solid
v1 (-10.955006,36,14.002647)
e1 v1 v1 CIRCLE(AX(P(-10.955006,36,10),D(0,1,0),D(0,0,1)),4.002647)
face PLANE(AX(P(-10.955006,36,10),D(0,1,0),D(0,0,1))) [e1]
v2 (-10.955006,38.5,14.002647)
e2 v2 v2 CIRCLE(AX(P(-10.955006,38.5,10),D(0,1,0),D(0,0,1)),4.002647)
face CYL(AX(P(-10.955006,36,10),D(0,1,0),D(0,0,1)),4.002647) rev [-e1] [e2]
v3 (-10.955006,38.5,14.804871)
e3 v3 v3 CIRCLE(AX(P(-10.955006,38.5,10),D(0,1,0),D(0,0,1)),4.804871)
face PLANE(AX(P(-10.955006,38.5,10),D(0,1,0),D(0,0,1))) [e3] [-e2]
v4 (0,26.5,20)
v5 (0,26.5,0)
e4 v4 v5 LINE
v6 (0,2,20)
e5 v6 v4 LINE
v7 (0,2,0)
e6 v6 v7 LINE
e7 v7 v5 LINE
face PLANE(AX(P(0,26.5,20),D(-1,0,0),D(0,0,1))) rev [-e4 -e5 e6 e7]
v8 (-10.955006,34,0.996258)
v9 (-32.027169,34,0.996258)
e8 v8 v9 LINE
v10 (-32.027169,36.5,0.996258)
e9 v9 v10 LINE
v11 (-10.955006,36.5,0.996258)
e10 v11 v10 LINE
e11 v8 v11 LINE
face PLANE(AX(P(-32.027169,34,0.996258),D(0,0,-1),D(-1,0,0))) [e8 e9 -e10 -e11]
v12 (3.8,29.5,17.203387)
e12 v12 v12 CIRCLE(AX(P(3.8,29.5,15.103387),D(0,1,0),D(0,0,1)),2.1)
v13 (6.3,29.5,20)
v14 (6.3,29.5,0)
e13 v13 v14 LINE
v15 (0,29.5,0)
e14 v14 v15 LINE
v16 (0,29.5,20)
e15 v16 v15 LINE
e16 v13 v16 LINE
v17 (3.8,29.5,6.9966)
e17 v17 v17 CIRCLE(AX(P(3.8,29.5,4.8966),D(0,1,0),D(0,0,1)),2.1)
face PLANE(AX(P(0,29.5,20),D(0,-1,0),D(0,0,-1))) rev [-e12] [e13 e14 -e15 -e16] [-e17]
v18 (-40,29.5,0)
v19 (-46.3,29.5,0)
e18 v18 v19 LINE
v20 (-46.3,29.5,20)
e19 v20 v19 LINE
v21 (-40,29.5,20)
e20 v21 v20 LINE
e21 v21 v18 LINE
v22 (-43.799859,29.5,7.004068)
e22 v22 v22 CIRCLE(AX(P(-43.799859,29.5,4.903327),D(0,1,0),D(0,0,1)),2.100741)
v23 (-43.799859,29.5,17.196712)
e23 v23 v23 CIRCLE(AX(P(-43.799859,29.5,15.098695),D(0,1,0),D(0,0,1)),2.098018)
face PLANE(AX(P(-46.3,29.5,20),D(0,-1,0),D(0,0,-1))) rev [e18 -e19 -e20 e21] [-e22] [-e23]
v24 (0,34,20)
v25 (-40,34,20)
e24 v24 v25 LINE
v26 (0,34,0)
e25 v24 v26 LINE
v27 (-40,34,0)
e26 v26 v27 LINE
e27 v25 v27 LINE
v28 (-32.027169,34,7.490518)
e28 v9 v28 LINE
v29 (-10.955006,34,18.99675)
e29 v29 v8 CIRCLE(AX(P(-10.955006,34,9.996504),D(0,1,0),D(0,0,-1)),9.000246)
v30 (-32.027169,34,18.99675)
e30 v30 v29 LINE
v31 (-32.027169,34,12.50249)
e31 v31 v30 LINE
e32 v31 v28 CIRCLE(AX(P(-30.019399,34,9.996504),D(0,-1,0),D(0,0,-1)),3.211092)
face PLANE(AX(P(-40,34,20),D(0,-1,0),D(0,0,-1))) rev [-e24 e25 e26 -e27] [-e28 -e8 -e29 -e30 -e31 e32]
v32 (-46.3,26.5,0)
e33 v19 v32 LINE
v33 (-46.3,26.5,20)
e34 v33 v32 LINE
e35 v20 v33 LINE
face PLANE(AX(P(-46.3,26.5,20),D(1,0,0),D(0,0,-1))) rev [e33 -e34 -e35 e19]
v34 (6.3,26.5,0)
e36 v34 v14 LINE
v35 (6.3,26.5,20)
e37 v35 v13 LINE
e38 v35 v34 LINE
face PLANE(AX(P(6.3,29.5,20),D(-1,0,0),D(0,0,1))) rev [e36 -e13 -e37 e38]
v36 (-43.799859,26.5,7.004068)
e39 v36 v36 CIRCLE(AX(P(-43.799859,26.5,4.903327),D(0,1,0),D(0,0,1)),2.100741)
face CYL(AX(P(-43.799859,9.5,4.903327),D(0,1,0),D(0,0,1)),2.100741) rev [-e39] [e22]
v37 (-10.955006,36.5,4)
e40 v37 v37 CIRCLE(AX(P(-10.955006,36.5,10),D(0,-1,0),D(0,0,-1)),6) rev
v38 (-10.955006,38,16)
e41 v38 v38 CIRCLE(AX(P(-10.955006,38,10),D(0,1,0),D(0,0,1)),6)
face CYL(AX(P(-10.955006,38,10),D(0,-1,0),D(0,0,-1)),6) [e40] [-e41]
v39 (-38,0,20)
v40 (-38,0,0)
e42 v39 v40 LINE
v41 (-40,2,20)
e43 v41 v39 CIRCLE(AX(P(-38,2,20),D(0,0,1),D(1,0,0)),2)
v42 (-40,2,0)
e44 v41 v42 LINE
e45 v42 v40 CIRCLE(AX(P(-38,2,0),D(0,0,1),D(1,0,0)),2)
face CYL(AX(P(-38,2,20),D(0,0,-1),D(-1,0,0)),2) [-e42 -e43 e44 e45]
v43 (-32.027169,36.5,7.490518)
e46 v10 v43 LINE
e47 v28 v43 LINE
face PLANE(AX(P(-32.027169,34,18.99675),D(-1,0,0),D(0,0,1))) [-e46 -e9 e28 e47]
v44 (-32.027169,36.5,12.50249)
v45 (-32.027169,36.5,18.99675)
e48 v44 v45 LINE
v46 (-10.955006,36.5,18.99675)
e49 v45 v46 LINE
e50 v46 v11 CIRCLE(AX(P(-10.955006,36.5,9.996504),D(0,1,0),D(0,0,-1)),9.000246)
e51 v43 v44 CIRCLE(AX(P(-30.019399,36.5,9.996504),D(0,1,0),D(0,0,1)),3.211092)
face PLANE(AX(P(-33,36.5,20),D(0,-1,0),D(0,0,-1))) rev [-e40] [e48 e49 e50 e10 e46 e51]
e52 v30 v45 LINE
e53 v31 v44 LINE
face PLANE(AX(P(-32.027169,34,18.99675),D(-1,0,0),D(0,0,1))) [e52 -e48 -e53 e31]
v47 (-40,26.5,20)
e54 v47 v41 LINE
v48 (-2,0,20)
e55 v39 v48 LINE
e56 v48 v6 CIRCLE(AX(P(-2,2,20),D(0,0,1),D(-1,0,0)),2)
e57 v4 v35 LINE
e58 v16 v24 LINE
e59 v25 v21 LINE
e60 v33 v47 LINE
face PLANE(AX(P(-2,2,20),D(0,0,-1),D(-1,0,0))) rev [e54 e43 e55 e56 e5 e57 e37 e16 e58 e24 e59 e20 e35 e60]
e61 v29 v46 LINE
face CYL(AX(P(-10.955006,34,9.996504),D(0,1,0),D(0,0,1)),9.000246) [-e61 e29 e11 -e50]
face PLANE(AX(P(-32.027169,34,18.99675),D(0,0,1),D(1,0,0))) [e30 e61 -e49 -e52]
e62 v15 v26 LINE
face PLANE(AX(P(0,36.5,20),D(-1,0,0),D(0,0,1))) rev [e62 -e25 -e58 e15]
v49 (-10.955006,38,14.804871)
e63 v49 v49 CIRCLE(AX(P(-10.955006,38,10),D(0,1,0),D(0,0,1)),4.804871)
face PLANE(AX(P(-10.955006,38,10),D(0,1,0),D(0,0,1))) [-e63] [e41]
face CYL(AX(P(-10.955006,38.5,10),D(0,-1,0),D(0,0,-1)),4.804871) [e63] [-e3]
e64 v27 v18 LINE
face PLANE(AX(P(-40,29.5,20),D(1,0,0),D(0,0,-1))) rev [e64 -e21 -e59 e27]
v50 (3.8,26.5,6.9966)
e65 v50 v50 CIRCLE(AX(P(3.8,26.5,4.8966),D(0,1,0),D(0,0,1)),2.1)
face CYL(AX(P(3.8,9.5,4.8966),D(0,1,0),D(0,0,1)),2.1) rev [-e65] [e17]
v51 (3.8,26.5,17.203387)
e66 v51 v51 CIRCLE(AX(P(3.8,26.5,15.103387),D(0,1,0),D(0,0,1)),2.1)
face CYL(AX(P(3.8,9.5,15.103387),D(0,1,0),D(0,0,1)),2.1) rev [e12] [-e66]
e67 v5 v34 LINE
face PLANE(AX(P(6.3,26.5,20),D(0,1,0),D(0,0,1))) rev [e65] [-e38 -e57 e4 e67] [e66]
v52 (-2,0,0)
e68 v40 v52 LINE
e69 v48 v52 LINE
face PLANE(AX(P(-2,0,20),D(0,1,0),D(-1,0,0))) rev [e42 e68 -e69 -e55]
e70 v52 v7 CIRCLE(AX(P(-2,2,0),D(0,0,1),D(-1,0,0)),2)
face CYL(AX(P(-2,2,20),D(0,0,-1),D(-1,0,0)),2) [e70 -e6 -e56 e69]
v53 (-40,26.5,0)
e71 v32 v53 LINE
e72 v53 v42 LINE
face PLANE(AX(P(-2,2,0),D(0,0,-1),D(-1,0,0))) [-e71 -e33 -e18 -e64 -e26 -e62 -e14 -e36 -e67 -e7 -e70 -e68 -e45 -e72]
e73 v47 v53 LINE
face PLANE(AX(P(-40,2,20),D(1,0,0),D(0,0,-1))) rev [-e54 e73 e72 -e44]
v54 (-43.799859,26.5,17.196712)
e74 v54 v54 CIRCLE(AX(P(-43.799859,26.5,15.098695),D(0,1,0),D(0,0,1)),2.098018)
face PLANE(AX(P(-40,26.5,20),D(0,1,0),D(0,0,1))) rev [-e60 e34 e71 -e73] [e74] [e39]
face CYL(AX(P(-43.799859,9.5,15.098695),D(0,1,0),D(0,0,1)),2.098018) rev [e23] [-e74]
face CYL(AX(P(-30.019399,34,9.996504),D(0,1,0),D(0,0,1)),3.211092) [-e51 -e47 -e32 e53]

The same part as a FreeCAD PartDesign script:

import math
import FreeCAD as App
import Part
import Sketcher
from FreeCAD import Vector


def add_polygon(sketch, points):
    """Adds a closed chain of lines whose ends are joined by coincident constraints."""
    first, n = sketch.GeometryCount, len(points)
    for a, b in zip(points, points[1:] + points[:1]):
        sketch.addGeometry(Part.LineSegment(App.Vector(*a, 0), App.Vector(*b, 0)), False)
    for i in range(n):
        sketch.addConstraint(Sketcher.Constraint("Coincident", first + i, 2, first + (i + 1) % n, 1))

doc = App.newDocument("Part")
body = doc.addObject("PartDesign::Body", "Body")

# Sketch on XY plane
sketch1 = body.newObject("Sketcher::SketchObject", "Sketch")
sketch1.AttachmentSupport = (doc.getObject("XY_Plane"), [""])
sketch1.MapMode = "FlatFace"
sketch1.addGeometry([
    Part.LineSegment(Vector(-38, 0, 0), Vector(-2, 0, 0)),  # 0
    Part.ArcOfCircle(Part.Circle(Vector(-2, 2, 0), Vector(0, 0, 1), 2), math.radians(-90), math.radians(0)),  # 1
    Part.LineSegment(Vector(0, 2, 0), Vector(0, 26.5, 0)),  # 2
    Part.LineSegment(Vector(0, 26.5, 0), Vector(6.3, 26.5, 0)),  # 3
    Part.LineSegment(Vector(6.3, 26.5, 0), Vector(6.3, 29.5, 0)),  # 4
    Part.LineSegment(Vector(6.3, 29.5, 0), Vector(0, 29.5, 0)),  # 5
    Part.LineSegment(Vector(0, 29.5, 0), Vector(0, 36.5, 0)),  # 6
    Part.LineSegment(Vector(0, 36.5, 0), Vector(-33, 36.5, 0)),  # 7
    Part.LineSegment(Vector(-33, 36.5, 0), Vector(-33, 34, 0)),  # 8
    Part.LineSegment(Vector(-33, 34, 0), Vector(-40, 34, 0)),  # 9
    Part.LineSegment(Vector(-40, 34, 0), Vector(-40, 29.5, 0)),  # 10
    Part.LineSegment(Vector(-40, 29.5, 0), Vector(-46.3, 29.5, 0)),  # 11
    Part.LineSegment(Vector(-46.3, 29.5, 0), Vector(-46.3, 26.5, 0)),  # 12
    Part.LineSegment(Vector(-46.3, 26.5, 0), Vector(-40, 26.5, 0)),  # 13
    Part.LineSegment(Vector(-40, 26.5, 0), Vector(-40, 2, 0)),  # 14
    Part.ArcOfCircle(Part.Circle(Vector(-38, 2, 0), Vector(0, 0, 1), 2), math.radians(-180), math.radians(-90)),  # 15
], False)
sketch1.addConstraint([
    Sketcher.Constraint("Tangent", 0, 2, 1, 1),
    Sketcher.Constraint("Tangent", 1, 2, 2, 1),
    Sketcher.Constraint("Coincident", 2, 2, 3, 1),
    Sketcher.Constraint("Coincident", 3, 2, 4, 1),
    Sketcher.Constraint("Coincident", 4, 2, 5, 1),
    Sketcher.Constraint("Coincident", 5, 2, 6, 1),
    Sketcher.Constraint("Coincident", 6, 2, 7, 1),
    Sketcher.Constraint("Coincident", 7, 2, 8, 1),
    Sketcher.Constraint("Coincident", 8, 2, 9, 1),
    Sketcher.Constraint("Coincident", 9, 2, 10, 1),
    Sketcher.Constraint("Coincident", 10, 2, 11, 1),
    Sketcher.Constraint("Coincident", 11, 2, 12, 1),
    Sketcher.Constraint("Coincident", 12, 2, 13, 1),
    Sketcher.Constraint("Coincident", 13, 2, 14, 1),
    Sketcher.Constraint("Tangent", 14, 2, 15, 1),
    Sketcher.Constraint("Tangent", 15, 2, 0, 1),
    Sketcher.Constraint("Horizontal", 0),
    Sketcher.Constraint("Vertical", 2),
    Sketcher.Constraint("Horizontal", 3),
    Sketcher.Constraint("Vertical", 4),
    Sketcher.Constraint("Horizontal", 5),
    Sketcher.Constraint("Vertical", 6),
    Sketcher.Constraint("Horizontal", 7),
    Sketcher.Constraint("Vertical", 8),
    Sketcher.Constraint("Horizontal", 9),
    Sketcher.Constraint("Vertical", 10),
    Sketcher.Constraint("Horizontal", 11),
    Sketcher.Constraint("Vertical", 12),
    Sketcher.Constraint("Horizontal", 13),
    Sketcher.Constraint("Vertical", 14),
    Sketcher.Constraint("Equal", 1, 15),
    Sketcher.Constraint("PointOnObject", 0, 2, -1),
    Sketcher.Constraint("PointOnObject", 1, 2, -2),
    Sketcher.Constraint("PointOnObject", 5, 2, -2),
    Sketcher.Constraint("Horizontal", 5, 2, 10, 2),
    Sketcher.Constraint("Horizontal", 3, 2, 12, 2),
    Sketcher.Constraint("Vertical", 10, 2, 13, 2),
    Sketcher.Constraint("Equal", 5, 11),
    Sketcher.Constraint("Equal", 9, 6),
    Sketcher.Constraint("Radius", 1, 2.0),
    Sketcher.Constraint("DistanceX", 0, 1, 0, 2, 36.0),
    Sketcher.Constraint("DistanceX", 7, 2, 7, 1, 33.0),
    Sketcher.Constraint("DistanceY", 4, 1, 4, 2, 3.0),
    Sketcher.Constraint("DistanceX", 3, 1, 3, 2, 6.3),
    Sketcher.Constraint("DistanceY", 2, 1, 2, 2, 24.5),
    Sketcher.Constraint("DistanceY", 8, 2, 8, 1, 2.5),
])
pad1 = body.newObject("PartDesign::Pad", "Pad")
pad1.Profile = sketch1
pad1.Length = 20

# Sketch on XZ plane
sketch2 = body.newObject("Sketcher::SketchObject", "Sketch001")
sketch2.AttachmentSupport = (doc.getObject("XZ_Plane"), [""])
sketch2.MapMode = "FlatFace"
sketch2.AttachmentOffset = App.Placement(Vector(0, 0, -29.5), App.Rotation())
sketch2.addGeometry([
    Part.Circle(Vector(3.8, 15.1, 0), Vector(0, 0, 1), 2.1),
    Part.Circle(Vector(3.8, 4.9, 0), Vector(0, 0, 1), 2.1),
], False)
sketch2.addConstraint([
    Sketcher.Constraint("Equal", 0, 1),
    Sketcher.Constraint("Vertical", 0, 3, 1, 3),
    Sketcher.Constraint("Diameter", 0, 4.2),
    Sketcher.Constraint("DistanceX", -1, 1, 0, 3, 3.8),
    Sketcher.Constraint("DistanceY", -1, 1, 1, 3, 4.8966),
    Sketcher.Constraint("DistanceY", -1, 1, 0, 3, 15.103387),
])
pocket1 = body.newObject("PartDesign::Pocket", "Pocket")
pocket1.Profile = sketch2
pocket1.Length = 20
pocket1.Reversed = True

# Sketch on XZ plane
sketch3 = body.newObject("Sketcher::SketchObject", "Sketch002")
sketch3.AttachmentSupport = (doc.getObject("XZ_Plane"), [""])
sketch3.MapMode = "FlatFace"
sketch3.AttachmentOffset = App.Placement(Vector(0, 0, -29.5), App.Rotation())
sketch3.addGeometry([
    Part.Circle(Vector(-43.8, 15.1, 0), Vector(0, 0, 1), 2.1),
    Part.Circle(Vector(-43.8, 4.9, 0), Vector(0, 0, 1), 2.1),
], False)
sketch3.addConstraint([
    Sketcher.Constraint("Vertical", 0, 3, 1, 3),
    Sketcher.Constraint("Diameter", 1, 4.201481),
    Sketcher.Constraint("Diameter", 0, 4.196035),
    Sketcher.Constraint("DistanceX", 0, 3, -1, 1, 43.799859),
    Sketcher.Constraint("DistanceY", -1, 1, 0, 3, 15.098695),
    Sketcher.Constraint("DistanceY", -1, 1, 1, 3, 4.903327),
])
pocket2 = body.newObject("PartDesign::Pocket", "Pocket001")
pocket2.Profile = sketch3
pocket2.Length = 20
pocket2.Reversed = True

# Sketch on XZ plane
sketch4 = body.newObject("Sketcher::SketchObject", "Sketch003")
sketch4.AttachmentSupport = (doc.getObject("XZ_Plane"), [""])
sketch4.MapMode = "FlatFace"
sketch4.AttachmentOffset = App.Placement(Vector(0, 0, -36.5), App.Rotation())
sketch4.addGeometry(Part.Circle(Vector(-11, 10, 0), Vector(0, 0, 1), 6), False)
sketch4.addConstraint([
    Sketcher.Constraint("Diameter", 0, 12.0),
    Sketcher.Constraint("DistanceY", -1, 1, 0, 3, 10.0),
    Sketcher.Constraint("DistanceX", 0, 3, -1, 1, 10.955006),
])
pad2 = body.newObject("PartDesign::Pad", "Pad001")
pad2.Profile = sketch4
pad2.Length = 1.5
pad2.Reversed = True

# Sketch on XZ plane
sketch5 = body.newObject("Sketcher::SketchObject", "Sketch004")
sketch5.AttachmentSupport = (doc.getObject("XZ_Plane"), [""])
sketch5.MapMode = "FlatFace"
sketch5.AttachmentOffset = App.Placement(Vector(0, 0, -38), App.Rotation())
sketch5.addGeometry(Part.Circle(Vector(-11, 10, 0), Vector(0, 0, 1), 4.8), False)
sketch5.addConstraint([
    Sketcher.Constraint("DistanceY", -1, 1, 0, 3, 10.0),
    Sketcher.Constraint("Diameter", 0, 9.609742),
    Sketcher.Constraint("DistanceX", 0, 3, -1, 1, 10.955006),
])
pad3 = body.newObject("PartDesign::Pad", "Pad002")
pad3.Profile = sketch5
pad3.Length = 0.5
pad3.Reversed = True

# Sketch on XZ plane
sketch6 = body.newObject("Sketcher::SketchObject", "Sketch005")
sketch6.AttachmentSupport = (doc.getObject("XZ_Plane"), [""])
sketch6.MapMode = "FlatFace"
sketch6.AttachmentOffset = App.Placement(Vector(0, 0, -38.5), App.Rotation())
sketch6.addGeometry(Part.Circle(Vector(-11, 10, 0), Vector(0, 0, 1), 4), False)
sketch6.addConstraint([
    Sketcher.Constraint("DistanceY", -1, 1, 0, 3, 10.0),
    Sketcher.Constraint("Diameter", 0, 8.005294),
    Sketcher.Constraint("DistanceX", 0, 3, -1, 1, 10.955006),
])
pocket3 = body.newObject("PartDesign::Pocket", "Pocket002")
pocket3.Profile = sketch6
pocket3.Length = 2.5
pocket3.Reversed = True

# Sketch on XZ plane
sketch7 = body.newObject("Sketcher::SketchObject", "Sketch006")
sketch7.AttachmentSupport = (doc.getObject("XZ_Plane"), [""])
sketch7.MapMode = "FlatFace"
sketch7.AttachmentOffset = App.Placement(Vector(0, 0, -36.5), App.Rotation())
add_polygon(sketch7, [(-54, -8), (-54, 28), (14, 28), (14, -8)])  # lines 0-3
sketch7.addGeometry(Part.LineSegment(Vector(-11, 19, 0), Vector(-32, 19, 0)), False)  # 4
sketch7.addGeometry(Part.LineSegment(Vector(-32, 19, 0), Vector(-32, 1, 0)), False)  # 5
sketch7.addGeometry(Part.LineSegment(Vector(-32, 1, 0), Vector(-11, 1, 0)), False)  # 6
sketch7.addGeometry(Part.ArcOfCircle(Part.Circle(Vector(-11, 10, 0), Vector(0, 0, 1), 9), math.radians(-90), math.radians(90)), False)  # 7
sketch7.addConstraint([
    Sketcher.Constraint("Coincident", 4, 2, 5, 1),
    Sketcher.Constraint("Coincident", 5, 2, 6, 1),
    Sketcher.Constraint("Tangent", 6, 2, 7, 1),
    Sketcher.Constraint("Tangent", 7, 2, 4, 1),
    Sketcher.Constraint("Vertical", 0),
    Sketcher.Constraint("Horizontal", 1),
    Sketcher.Constraint("Vertical", 2),
    Sketcher.Constraint("Horizontal", 3),
    Sketcher.Constraint("Horizontal", 4),
    Sketcher.Constraint("Vertical", 5),
    Sketcher.Constraint("Horizontal", 6),
    Sketcher.Constraint("DistanceX", 1, 1, 1, 2, 68.236),
    Sketcher.Constraint("DistanceY", 0, 1, 0, 2, 35.636),
    Sketcher.Constraint("DistanceX", 0, 2, -1, 1, 54.118),
    Sketcher.Constraint("DistanceY", -1, 1, 0, 2, 27.818),
    Sketcher.Constraint("Radius", 7, 9.000246),
    Sketcher.Constraint("DistanceX", 4, 2, 4, 1, 21.072164),
    Sketcher.Constraint("DistanceX", 4, 2, -1, 1, 32.027169),
    Sketcher.Constraint("DistanceY", -1, 1, 4, 2, 18.99675),
])
pocket4 = body.newObject("PartDesign::Pocket", "Pocket003")
pocket4.Profile = sketch7
pocket4.Length = 2.5
pocket4.Reversed = True

# Sketch on XZ plane
sketch8 = body.newObject("Sketcher::SketchObject", "Sketch007")
sketch8.AttachmentSupport = (doc.getObject("XZ_Plane"), [""])
sketch8.MapMode = "FlatFace"
sketch8.AttachmentOffset = App.Placement(Vector(0, 0, -36.5), App.Rotation())
sketch8.addGeometry([
    Part.LineSegment(Vector(-32, 12.5, 0), Vector(-32, 7.5, 0)),
    Part.ArcOfCircle(Part.Circle(Vector(-30, 10, 0), Vector(0, 0, 1), 3.2), math.radians(-180), math.radians(-129)),
    Part.ArcOfCircle(Part.Circle(Vector(-30, 10, 0), Vector(0, 0, 1), 3.2), math.radians(129), math.radians(180)),
], False)
sketch8.addConstraint([
    Sketcher.Constraint("Coincident", 0, 2, 1, 2),
    Sketcher.Constraint("Tangent", 1, 1, 2, 2),
    Sketcher.Constraint("Coincident", 2, 1, 0, 1),
    Sketcher.Constraint("Vertical", 0),
    Sketcher.Constraint("Equal", 1, 2),
    Sketcher.Constraint("Horizontal", 2, 3, 1, 1),
    Sketcher.Constraint("Radius", 1, 3.211092),
    Sketcher.Constraint("DistanceX", 1, 3, -1, 1, 30.019399),
    Sketcher.Constraint("DistanceY", 0, 2, 0, 1, 5.011972),
    Sketcher.Constraint("DistanceY", -1, 1, 0, 2, 7.490518),
])
pad4 = body.newObject("PartDesign::Pad", "Pad003")
pad4.Profile = sketch8
pad4.Length = 2.5

doc.recompute()
